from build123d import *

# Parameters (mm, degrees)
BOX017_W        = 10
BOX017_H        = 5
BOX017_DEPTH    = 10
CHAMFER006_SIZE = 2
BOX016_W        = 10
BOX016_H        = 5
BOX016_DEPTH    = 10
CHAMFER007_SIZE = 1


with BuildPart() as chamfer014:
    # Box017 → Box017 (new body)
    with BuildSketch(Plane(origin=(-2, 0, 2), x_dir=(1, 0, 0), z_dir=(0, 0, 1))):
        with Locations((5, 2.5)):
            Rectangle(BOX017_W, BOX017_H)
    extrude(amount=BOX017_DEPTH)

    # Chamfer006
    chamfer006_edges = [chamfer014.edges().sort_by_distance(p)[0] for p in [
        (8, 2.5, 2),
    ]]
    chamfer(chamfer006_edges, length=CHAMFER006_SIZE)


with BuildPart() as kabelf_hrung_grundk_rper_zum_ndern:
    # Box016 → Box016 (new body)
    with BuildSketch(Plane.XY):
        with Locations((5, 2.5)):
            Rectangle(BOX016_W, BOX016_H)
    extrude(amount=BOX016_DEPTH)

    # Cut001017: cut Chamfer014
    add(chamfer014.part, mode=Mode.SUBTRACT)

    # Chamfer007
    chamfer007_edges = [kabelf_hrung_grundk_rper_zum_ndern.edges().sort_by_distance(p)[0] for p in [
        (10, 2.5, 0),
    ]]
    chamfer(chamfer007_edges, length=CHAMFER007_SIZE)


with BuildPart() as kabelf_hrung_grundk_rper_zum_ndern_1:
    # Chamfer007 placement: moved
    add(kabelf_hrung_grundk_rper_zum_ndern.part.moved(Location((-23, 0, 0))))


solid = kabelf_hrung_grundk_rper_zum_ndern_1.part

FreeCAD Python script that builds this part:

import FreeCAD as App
import Part
import Sketcher
from FreeCAD import Vector
Q = App.Units.Quantity


def edges_at(feature, points):
    """Names of the edges that pass closest to the given points."""
    edges = feature.Shape.Edges
    near = lambda p: min(range(len(edges)), key=lambda i: edges[i].distToShape(Part.Vertex(*p))[0])
    return sorted({f"Edge{near(p) + 1}" for p in points})

doc = App.newDocument("Part")
body = doc.addObject("PartDesign::Body", "Body")

sketch1 = body.newObject("Sketcher::SketchObject", "Sketch")
sketch1.AttachmentSupport = (doc.getObject("XY_Plane"), [""])
sketch1.MapMode = "FlatFace"
sketch1.AttachmentOffset = App.Placement(Vector(0, 0, 2), App.Rotation())
sketch1.addGeometry([
    Part.LineSegment(Vector(-2, 5, 0), Vector(-2, 0, 0)),
    Part.LineSegment(Vector(-2, 0, 0), Vector(8, 0, 0)),
    Part.LineSegment(Vector(8, 0, 0), Vector(8, 5, 0)),
    Part.LineSegment(Vector(8, 5, 0), Vector(-2, 5, 0)),
], False)
sketch1.addConstraint([
    Sketcher.Constraint("Coincident", 0, 2, 1, 1),
    Sketcher.Constraint("Coincident", 1, 2, 2, 1),
    Sketcher.Constraint("Coincident", 2, 2, 3, 1),
    Sketcher.Constraint("Coincident", 3, 2, 0, 1),
    Sketcher.Constraint("Vertical", 0),
    Sketcher.Constraint("Horizontal", 1),
    Sketcher.Constraint("Vertical", 2),
    Sketcher.Constraint("Horizontal", 3),
    Sketcher.Constraint("PointOnObject", 0, 2, -1),
    Sketcher.Constraint("DistanceX", 1, 1, 1, 2, Q("10 mm")),
    Sketcher.Constraint("DistanceY", 0, 2, 0, 1, Q("5 mm")),
    Sketcher.Constraint("DistanceX", 0, 2, -1, 1, Q("2 mm")),
])
pad1 = body.newObject("PartDesign::Pad", "Pad")
pad1.Profile = sketch1
pad1.Length = 10
doc.recompute()

chamfer = body.newObject("PartDesign::Chamfer", "Chamfer")
chamfer.Base = (pad1, edges_at(pad1, [(8, 2.5, 2)]))
chamfer.Size = 2
body2 = doc.addObject("PartDesign::Body", "Body001")

sketch2 = body2.newObject("Sketcher::SketchObject", "Sketch001")
sketch2.AttachmentSupport = (doc.getObject("XY_Plane001"), [""])
sketch2.MapMode = "FlatFace"
sketch2.addGeometry([
    Part.LineSegment(Vector(0, 5, 0), Vector(0, 0, 0)),
    Part.LineSegment(Vector(0, 0, 0), Vector(10, 0, 0)),
    Part.LineSegment(Vector(10, 0, 0), Vector(10, 5, 0)),
    Part.LineSegment(Vector(10, 5, 0), Vector(0, 5, 0)),
], False)
sketch2.addConstraint([
    Sketcher.Constraint("Coincident", 0, 2, 1, 1),
    Sketcher.Constraint("Coincident", 1, 2, 2, 1),
    Sketcher.Constraint("Coincident", 2, 2, 3, 1),
    Sketcher.Constraint("Coincident", 3, 2, 0, 1),
    Sketcher.Constraint("Vertical", 0),
    Sketcher.Constraint("Horizontal", 1),
    Sketcher.Constraint("Vertical", 2),
    Sketcher.Constraint("Horizontal", 3),
    Sketcher.Constraint("Coincident", 0, 2, -1, 1),
    Sketcher.Constraint("DistanceX", 1, 1, 1, 2, Q("10 mm")),
    Sketcher.Constraint("DistanceY", 0, 2, 0, 1, Q("5 mm")),
])
pad2 = body2.newObject("PartDesign::Pad", "Pad001")
pad2.Profile = sketch2
pad2.Length = 10
doc.recompute()

boolean = body2.newObject("PartDesign::Boolean", "Boolean")
boolean.Type = "Cut"
boolean.addObjects([body])
doc.recompute()

chamfer2 = body2.newObject("PartDesign::Chamfer", "Chamfer001")
chamfer2.Base = (boolean, edges_at(boolean, [(10, 2.5, 0)]))
chamfer2.Size = 1
body3 = doc.addObject("PartDesign::Body", "Body002")
doc.recompute()

body2.Placement = App.Placement(Vector(-23, 0, 0), App.Rotation(Vector(0, 0, 1), 0))
boolean2 = body3.newObject("PartDesign::Boolean", "Boolean001")
boolean2.Type = "Fuse"
boolean2.addObjects([body2])

doc.recompute()
